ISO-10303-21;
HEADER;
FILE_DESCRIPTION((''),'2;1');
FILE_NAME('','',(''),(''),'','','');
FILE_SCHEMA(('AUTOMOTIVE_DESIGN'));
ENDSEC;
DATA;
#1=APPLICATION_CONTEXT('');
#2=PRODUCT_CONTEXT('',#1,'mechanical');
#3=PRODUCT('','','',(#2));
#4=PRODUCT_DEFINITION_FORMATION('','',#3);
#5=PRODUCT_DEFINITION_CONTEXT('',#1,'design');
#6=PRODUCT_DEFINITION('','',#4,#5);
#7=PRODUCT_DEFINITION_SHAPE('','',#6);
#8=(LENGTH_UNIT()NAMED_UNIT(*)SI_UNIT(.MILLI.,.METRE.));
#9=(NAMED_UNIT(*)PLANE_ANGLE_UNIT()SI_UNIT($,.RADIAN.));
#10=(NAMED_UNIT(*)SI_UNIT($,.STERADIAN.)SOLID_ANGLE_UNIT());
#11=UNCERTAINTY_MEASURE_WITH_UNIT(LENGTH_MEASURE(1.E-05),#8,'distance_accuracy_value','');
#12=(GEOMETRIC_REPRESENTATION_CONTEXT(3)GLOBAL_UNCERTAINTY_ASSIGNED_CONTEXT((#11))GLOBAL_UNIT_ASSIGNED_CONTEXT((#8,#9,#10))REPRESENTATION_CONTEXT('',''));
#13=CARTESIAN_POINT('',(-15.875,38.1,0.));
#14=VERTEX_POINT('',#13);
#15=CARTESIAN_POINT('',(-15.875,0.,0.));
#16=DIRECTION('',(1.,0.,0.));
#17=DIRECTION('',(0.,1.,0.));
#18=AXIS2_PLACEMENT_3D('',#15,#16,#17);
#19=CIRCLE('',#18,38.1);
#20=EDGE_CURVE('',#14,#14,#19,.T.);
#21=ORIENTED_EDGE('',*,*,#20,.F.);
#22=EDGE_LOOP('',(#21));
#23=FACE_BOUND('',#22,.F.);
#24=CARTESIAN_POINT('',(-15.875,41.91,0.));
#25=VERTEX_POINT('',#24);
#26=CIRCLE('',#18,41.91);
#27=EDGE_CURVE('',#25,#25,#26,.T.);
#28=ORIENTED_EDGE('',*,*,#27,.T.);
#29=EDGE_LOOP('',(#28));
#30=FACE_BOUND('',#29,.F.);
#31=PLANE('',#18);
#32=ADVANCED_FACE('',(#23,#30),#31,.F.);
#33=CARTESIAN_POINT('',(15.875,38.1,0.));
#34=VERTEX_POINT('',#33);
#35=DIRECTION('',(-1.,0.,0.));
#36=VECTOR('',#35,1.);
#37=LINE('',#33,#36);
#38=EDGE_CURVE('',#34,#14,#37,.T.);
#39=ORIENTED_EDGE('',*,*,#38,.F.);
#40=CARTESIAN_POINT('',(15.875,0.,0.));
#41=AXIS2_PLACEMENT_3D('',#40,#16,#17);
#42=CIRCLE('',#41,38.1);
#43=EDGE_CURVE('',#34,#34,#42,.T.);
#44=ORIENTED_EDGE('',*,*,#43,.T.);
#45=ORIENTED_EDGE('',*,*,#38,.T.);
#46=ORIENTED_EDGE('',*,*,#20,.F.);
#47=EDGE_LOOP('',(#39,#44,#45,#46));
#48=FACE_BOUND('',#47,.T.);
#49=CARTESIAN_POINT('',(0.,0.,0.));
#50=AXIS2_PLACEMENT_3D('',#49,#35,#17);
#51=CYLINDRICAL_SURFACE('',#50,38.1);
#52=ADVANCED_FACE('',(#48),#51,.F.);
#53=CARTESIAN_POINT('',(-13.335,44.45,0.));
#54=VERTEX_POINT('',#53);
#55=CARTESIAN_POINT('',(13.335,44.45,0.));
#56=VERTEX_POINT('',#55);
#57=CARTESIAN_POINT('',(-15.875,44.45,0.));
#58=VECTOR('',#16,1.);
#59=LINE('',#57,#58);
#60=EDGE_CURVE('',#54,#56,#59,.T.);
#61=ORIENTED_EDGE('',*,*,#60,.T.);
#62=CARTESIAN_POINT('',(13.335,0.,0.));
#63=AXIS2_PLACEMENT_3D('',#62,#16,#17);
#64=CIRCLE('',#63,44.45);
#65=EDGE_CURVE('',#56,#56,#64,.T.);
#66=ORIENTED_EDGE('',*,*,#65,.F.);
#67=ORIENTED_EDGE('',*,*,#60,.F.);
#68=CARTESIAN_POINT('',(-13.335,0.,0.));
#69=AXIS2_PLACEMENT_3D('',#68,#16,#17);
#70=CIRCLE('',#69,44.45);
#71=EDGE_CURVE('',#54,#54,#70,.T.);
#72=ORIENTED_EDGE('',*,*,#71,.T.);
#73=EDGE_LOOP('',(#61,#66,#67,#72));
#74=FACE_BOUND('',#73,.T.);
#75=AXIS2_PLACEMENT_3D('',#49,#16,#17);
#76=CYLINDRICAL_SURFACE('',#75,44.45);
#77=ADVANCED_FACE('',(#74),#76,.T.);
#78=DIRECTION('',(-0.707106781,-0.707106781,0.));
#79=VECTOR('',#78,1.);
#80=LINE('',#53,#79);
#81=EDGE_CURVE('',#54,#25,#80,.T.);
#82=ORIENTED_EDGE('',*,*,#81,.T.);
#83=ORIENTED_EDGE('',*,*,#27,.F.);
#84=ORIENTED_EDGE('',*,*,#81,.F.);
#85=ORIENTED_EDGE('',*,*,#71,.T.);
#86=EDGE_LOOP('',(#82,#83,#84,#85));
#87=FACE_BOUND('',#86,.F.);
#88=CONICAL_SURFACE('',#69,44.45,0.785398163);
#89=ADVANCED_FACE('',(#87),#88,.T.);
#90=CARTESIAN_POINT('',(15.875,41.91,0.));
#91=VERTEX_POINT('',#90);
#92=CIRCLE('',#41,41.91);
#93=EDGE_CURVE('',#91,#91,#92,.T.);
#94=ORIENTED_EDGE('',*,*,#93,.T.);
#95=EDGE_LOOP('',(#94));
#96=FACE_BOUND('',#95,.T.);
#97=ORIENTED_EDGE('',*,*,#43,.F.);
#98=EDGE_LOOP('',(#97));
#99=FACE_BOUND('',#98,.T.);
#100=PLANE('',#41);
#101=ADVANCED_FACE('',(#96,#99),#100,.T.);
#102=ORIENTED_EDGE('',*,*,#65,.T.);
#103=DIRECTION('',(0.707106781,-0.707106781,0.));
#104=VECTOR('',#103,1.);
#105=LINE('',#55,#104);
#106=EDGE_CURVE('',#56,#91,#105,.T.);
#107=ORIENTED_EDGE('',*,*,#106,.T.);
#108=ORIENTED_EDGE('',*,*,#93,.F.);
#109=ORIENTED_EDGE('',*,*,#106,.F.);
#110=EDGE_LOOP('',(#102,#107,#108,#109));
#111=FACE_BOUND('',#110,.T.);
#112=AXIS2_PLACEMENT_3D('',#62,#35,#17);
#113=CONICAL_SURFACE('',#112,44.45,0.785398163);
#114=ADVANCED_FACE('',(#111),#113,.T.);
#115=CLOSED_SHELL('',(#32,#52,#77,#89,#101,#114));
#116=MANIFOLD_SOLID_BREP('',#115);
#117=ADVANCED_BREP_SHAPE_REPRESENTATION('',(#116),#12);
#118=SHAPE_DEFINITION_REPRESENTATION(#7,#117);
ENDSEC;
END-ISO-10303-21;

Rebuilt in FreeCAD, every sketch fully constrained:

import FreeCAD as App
import Part
import Sketcher
from FreeCAD import Vector
Q = App.Units.Quantity


def edges_at(feature, points):
    """Names of the edges that pass closest to the given points."""
    edges = feature.Shape.Edges
    near = lambda p: min(range(len(edges)), key=lambda i: edges[i].distToShape(Part.Vertex(*p))[0])
    return sorted({f"Edge{near(p) + 1}" for p in points})

doc = App.newDocument("Part")
body = doc.addObject("PartDesign::Body", "Body")

# Sketch on YZ plane
sketch1 = body.newObject("Sketcher::SketchObject", "Sketch")
sketch1.AttachmentSupport = (doc.getObject("YZ_Plane"), [""])
sketch1.MapMode = "FlatFace"
sketch1.addGeometry(Part.Circle(Vector(0, 0, 0), Vector(0, 0, 1), 44), False)
sketch1.addGeometry(Part.Circle(Vector(0, 0, 0), Vector(0, 0, 1), 38), False)
sketch1.addConstraint(Sketcher.Constraint("Coincident", 0, 3, -1, 1))
sketch1.addConstraint(Sketcher.Constraint("Coincident", 1, 3, -1, 1))
sketch1.addConstraint(Sketcher.Constraint("Diameter", 1, Q("3 in")))
sketch1.addConstraint(Sketcher.Constraint("Diameter", 0, Q("3.5 in")))
pad1 = body.newObject("PartDesign::Pad", "Pad")
pad1.Profile = sketch1
pad1.Length = Q("1.25 in")
pad1.Midplane = True
doc.recompute()

chamfer = body.newObject("PartDesign::Chamfer", "Chamfer")
chamfer.Base = (pad1, edges_at(pad1, [(15.875, -44.45, 0), (-15.875, -44.45, 0)]))
chamfer.Size = Q("0.1 in")

doc.recompute()
